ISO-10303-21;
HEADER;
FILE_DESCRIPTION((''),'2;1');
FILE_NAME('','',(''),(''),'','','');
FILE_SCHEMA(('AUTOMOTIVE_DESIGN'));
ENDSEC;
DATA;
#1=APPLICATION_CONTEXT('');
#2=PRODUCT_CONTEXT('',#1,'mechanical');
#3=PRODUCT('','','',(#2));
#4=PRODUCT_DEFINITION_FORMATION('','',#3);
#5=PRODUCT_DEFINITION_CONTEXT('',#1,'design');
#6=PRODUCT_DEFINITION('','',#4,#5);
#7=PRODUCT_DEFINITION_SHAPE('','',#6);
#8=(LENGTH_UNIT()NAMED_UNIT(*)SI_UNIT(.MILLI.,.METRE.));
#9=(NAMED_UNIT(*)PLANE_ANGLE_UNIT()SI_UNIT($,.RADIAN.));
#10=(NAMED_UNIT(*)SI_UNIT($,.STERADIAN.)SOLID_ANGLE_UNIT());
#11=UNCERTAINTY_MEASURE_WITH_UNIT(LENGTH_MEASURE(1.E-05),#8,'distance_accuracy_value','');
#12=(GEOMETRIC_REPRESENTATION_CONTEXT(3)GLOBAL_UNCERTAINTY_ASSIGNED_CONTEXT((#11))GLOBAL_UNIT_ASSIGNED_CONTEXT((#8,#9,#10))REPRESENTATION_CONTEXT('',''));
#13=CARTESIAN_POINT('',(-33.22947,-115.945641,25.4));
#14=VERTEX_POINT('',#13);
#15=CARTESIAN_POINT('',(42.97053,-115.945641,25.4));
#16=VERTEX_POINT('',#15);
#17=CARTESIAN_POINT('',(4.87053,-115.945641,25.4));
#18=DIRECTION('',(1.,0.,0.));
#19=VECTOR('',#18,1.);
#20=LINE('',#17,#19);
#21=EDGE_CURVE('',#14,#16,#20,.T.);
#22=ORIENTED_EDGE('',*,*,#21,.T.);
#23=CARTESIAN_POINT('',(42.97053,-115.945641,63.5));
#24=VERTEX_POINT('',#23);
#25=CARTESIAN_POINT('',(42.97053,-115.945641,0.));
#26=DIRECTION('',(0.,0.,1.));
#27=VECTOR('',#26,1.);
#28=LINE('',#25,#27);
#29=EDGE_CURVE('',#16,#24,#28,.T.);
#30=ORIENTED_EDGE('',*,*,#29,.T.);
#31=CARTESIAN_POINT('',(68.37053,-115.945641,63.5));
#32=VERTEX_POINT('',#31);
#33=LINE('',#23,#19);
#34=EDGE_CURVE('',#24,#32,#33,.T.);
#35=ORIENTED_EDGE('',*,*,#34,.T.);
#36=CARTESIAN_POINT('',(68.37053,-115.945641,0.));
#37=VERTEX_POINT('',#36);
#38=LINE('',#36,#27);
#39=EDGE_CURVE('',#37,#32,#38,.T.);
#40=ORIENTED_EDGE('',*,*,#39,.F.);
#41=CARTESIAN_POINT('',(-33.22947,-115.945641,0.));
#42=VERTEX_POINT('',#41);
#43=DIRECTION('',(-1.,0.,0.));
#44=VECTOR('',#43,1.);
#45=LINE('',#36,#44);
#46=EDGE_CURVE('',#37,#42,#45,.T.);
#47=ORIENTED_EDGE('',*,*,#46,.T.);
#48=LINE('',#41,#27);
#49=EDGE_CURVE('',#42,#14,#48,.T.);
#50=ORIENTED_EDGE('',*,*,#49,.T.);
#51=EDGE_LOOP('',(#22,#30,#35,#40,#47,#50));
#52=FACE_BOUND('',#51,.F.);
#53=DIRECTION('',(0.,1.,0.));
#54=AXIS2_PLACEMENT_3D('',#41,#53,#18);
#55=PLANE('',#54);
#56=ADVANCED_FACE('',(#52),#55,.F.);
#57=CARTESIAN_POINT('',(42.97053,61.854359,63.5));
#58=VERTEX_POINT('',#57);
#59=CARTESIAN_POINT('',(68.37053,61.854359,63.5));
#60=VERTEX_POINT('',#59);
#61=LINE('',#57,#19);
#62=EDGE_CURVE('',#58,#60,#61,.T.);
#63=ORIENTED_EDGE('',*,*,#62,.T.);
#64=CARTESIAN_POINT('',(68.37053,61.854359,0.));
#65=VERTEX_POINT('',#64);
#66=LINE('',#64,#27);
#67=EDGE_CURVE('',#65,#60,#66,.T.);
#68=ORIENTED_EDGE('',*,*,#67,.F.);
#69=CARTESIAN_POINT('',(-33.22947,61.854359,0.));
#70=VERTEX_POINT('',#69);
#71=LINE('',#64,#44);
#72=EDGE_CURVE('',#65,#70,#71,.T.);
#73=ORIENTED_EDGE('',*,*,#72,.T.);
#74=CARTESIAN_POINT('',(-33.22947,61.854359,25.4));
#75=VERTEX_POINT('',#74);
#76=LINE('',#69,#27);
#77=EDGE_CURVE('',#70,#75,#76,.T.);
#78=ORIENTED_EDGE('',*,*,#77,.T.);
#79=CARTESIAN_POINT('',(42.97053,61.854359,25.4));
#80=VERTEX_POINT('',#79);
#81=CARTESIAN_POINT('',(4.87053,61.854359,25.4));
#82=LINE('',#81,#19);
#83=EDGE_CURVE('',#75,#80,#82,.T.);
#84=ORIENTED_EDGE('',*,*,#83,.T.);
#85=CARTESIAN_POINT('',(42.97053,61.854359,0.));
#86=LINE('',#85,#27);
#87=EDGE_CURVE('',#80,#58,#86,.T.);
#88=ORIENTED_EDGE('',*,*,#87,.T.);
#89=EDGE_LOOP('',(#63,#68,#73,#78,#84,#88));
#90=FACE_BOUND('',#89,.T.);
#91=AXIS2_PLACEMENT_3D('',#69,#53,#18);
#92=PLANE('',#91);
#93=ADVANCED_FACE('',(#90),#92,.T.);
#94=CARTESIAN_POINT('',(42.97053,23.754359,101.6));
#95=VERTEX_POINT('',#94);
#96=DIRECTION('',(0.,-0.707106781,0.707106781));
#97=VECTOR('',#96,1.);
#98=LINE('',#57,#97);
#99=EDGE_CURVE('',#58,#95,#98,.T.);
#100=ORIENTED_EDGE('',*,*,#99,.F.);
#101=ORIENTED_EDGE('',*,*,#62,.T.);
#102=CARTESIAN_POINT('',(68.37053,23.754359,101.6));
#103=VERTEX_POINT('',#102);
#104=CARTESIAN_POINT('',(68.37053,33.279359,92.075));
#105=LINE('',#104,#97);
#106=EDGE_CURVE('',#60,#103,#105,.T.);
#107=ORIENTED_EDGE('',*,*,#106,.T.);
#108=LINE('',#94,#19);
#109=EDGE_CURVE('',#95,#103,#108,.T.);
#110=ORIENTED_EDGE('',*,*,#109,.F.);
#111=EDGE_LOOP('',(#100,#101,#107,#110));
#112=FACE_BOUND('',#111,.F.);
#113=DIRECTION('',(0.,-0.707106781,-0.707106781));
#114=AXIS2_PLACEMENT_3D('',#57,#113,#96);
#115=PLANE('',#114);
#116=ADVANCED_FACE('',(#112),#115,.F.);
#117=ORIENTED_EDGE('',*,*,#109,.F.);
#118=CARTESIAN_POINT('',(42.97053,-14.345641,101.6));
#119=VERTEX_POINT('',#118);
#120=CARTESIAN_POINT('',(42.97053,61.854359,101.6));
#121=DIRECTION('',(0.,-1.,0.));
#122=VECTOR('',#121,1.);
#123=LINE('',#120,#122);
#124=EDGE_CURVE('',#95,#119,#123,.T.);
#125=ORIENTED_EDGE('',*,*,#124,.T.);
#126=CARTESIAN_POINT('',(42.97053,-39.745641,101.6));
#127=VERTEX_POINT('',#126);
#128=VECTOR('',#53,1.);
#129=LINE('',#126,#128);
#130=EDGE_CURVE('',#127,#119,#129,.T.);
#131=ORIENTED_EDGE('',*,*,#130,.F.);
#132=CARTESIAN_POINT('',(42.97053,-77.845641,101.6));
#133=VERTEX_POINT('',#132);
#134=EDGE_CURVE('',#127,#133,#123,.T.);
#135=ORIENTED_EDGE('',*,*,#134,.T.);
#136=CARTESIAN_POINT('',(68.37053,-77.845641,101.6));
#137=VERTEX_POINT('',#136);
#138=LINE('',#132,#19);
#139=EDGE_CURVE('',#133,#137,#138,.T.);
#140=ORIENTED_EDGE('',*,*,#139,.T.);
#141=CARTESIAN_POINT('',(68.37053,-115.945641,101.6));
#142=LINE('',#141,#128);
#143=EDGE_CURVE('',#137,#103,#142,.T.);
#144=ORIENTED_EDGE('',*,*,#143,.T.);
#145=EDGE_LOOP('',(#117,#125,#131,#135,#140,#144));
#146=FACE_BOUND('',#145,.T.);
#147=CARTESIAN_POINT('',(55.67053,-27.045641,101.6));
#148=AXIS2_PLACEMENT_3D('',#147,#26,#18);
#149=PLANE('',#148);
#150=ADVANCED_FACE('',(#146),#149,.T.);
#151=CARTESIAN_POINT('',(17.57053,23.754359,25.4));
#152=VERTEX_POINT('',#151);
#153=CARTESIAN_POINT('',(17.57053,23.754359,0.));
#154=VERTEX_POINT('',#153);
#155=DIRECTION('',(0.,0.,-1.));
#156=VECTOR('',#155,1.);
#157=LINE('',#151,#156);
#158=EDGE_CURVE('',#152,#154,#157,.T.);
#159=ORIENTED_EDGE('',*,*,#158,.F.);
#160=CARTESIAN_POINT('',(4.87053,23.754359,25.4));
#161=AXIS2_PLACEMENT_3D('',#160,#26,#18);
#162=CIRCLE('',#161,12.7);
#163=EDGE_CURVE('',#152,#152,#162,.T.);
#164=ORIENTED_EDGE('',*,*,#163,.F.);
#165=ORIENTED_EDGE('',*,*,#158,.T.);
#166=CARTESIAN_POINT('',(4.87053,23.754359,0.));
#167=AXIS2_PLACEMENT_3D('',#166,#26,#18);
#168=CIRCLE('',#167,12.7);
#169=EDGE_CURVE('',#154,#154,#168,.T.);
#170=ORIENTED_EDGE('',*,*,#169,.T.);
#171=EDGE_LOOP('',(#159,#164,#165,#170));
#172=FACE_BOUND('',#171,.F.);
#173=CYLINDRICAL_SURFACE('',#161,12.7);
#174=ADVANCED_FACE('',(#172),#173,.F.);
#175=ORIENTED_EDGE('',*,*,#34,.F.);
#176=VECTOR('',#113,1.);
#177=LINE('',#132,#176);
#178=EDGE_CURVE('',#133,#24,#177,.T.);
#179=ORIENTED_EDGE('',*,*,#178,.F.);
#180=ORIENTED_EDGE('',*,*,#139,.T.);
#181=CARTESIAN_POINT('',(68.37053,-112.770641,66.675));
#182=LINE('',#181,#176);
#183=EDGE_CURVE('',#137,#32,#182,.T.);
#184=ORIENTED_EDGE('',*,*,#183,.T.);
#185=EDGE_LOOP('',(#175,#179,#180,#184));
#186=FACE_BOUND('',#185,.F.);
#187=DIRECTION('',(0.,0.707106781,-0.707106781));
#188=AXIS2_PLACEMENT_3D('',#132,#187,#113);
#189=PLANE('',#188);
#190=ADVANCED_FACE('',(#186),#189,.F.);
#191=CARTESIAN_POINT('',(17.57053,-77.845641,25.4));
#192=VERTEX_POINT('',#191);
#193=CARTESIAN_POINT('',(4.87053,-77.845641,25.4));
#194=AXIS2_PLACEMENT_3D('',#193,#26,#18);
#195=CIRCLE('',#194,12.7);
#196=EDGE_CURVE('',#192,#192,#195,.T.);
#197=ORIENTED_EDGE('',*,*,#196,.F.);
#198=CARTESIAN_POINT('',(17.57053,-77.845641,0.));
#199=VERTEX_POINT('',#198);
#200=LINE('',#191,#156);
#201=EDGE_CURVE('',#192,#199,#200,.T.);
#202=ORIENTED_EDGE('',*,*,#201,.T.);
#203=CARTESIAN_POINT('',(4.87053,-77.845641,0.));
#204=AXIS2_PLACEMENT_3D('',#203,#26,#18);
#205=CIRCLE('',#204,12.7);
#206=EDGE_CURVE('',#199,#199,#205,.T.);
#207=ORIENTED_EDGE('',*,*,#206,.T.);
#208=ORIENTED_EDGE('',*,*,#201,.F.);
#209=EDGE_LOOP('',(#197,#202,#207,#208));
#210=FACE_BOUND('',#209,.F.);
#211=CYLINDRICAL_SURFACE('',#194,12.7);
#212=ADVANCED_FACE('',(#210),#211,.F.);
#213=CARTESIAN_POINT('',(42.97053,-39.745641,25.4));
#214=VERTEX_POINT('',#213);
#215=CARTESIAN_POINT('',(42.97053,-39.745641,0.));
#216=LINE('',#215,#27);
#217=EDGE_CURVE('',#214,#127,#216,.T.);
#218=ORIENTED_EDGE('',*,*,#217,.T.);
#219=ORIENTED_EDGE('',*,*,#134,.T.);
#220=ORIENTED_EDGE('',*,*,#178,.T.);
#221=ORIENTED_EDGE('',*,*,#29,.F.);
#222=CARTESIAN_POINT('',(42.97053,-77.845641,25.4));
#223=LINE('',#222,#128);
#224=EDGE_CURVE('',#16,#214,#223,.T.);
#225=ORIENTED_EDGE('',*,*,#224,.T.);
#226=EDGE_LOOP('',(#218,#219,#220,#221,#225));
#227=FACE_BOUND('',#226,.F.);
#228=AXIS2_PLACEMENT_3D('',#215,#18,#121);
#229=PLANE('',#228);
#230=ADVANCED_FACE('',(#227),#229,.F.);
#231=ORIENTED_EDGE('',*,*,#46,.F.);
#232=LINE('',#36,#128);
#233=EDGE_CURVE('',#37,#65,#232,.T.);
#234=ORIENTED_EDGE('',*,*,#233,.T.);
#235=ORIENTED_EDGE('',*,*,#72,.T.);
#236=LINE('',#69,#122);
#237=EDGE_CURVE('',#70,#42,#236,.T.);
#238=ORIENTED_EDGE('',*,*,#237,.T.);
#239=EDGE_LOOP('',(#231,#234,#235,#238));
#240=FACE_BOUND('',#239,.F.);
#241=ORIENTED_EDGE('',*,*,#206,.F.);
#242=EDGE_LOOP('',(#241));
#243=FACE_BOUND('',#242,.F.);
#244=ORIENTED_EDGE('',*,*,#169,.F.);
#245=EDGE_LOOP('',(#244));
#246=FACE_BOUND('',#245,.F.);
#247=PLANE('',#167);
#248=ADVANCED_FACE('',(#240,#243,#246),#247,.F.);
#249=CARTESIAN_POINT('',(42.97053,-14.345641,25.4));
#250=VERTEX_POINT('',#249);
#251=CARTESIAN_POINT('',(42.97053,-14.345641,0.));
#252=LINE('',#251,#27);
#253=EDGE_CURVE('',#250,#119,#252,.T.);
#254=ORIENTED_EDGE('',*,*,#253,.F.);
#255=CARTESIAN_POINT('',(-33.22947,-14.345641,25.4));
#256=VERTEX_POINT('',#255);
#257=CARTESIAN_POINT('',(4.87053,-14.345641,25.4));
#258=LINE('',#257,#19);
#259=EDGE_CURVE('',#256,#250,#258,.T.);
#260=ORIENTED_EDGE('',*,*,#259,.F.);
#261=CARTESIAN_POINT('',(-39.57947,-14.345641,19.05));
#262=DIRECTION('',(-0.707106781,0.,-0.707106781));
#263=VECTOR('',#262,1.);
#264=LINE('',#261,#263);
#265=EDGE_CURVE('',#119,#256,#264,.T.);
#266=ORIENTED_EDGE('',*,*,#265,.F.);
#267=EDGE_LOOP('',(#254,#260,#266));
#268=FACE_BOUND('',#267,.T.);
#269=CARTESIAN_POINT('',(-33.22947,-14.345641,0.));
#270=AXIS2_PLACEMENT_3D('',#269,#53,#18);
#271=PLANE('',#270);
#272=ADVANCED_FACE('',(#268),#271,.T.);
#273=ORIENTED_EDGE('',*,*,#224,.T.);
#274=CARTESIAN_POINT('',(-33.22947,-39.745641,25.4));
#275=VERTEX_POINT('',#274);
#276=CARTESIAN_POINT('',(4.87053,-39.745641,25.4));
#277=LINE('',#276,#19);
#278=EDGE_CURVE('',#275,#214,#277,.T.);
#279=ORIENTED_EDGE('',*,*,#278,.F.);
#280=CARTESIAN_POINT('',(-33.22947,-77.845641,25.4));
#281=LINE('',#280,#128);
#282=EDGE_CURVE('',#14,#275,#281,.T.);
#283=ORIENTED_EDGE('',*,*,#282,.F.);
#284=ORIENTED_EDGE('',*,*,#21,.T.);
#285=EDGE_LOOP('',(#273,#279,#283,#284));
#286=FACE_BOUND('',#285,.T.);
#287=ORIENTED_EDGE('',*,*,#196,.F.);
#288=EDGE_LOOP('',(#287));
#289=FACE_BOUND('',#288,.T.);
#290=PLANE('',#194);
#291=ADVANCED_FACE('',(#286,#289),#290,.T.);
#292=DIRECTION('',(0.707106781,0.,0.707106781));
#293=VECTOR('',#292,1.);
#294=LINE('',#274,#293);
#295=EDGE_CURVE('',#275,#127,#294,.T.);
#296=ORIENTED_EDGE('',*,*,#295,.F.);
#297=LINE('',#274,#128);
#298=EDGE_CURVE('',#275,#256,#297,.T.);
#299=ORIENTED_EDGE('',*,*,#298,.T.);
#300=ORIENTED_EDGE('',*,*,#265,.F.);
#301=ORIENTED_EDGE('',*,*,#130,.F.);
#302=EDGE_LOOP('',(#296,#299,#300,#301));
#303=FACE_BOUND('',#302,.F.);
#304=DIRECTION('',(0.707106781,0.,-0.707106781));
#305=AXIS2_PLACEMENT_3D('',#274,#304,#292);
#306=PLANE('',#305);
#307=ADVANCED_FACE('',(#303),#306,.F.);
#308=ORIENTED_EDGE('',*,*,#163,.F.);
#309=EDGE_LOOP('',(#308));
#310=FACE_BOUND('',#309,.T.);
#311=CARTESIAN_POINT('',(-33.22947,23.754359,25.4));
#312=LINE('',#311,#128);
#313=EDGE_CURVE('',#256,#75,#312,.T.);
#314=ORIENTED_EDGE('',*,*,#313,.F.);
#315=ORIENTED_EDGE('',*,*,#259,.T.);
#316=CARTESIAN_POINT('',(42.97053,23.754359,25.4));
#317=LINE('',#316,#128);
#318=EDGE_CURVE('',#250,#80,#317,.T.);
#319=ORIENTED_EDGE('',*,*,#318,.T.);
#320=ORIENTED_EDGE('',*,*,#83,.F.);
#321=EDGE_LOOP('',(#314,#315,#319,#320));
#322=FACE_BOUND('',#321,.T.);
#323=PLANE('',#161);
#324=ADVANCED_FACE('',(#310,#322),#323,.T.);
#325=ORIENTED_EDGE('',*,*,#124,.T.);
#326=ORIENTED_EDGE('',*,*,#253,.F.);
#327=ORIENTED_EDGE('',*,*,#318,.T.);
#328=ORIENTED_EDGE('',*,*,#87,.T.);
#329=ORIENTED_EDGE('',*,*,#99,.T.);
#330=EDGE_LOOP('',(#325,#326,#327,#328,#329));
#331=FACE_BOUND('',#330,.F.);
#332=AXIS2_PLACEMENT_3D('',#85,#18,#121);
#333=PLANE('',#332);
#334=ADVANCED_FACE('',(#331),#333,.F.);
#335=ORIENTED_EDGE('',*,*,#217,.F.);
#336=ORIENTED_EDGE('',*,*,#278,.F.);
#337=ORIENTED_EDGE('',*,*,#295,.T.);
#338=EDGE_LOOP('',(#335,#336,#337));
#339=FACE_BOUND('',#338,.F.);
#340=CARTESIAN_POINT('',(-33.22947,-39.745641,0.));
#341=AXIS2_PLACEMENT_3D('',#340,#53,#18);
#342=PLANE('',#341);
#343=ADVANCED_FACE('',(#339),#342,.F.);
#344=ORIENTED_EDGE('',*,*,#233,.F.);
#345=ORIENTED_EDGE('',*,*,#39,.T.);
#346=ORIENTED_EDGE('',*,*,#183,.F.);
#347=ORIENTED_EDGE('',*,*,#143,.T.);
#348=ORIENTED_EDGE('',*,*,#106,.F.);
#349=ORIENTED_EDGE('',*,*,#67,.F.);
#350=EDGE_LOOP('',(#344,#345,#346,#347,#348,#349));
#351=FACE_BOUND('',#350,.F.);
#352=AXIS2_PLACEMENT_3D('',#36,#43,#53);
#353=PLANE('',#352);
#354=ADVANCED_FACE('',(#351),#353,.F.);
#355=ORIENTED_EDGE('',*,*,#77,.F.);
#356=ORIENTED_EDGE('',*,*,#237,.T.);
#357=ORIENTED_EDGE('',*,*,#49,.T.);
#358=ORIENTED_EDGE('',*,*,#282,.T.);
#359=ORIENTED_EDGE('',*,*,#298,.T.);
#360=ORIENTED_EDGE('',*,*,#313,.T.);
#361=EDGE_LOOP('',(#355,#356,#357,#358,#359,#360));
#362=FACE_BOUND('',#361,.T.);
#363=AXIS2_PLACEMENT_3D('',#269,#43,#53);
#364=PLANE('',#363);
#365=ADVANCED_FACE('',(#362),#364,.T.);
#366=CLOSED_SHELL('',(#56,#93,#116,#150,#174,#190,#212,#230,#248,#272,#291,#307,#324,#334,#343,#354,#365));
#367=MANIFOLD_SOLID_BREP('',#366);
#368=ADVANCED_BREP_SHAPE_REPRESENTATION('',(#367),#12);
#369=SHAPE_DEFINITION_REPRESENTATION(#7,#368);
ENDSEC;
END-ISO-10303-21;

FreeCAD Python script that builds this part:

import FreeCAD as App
import Part
import Sketcher

V = App.Vector
Q = App.Units.Quantity


def add_polygon(sketch, points):
    """Adds a closed chain of lines whose ends are joined by coincident constraints."""
    first, n = sketch.GeometryCount, len(points)
    for a, b in zip(points, points[1:] + points[:1]):
        sketch.addGeometry(Part.LineSegment(App.Vector(*a, 0), App.Vector(*b, 0)), False)
    for i in range(n):
        sketch.addConstraint(Sketcher.Constraint("Coincident", first + i, 2, first + (i + 1) % n, 1))

doc = App.newDocument("Part")
params = doc.addObject("Spreadsheet::Sheet", "Params")
for row, (alias, value) in enumerate([
    ("sketch1_width", "1 in"),
    ("sketch1_width2", "3 in"),
    ("pad1_length", "4 in"),
    ("sketch2_width", "3 in"),
    ("pad2_length", "1 in"),
    ("sketch3_width", "3 in"),
    ("sketch4_width", "1.5 in"),
    ("sketch5_diameter", "1 in"),
], start=1):
    params.set(f"A{row}", alias)
    params.set(f"B{row}", "=" + value)
    params.setAlias(f"B{row}", alias)

body = doc.addObject("PartDesign::Body", "Body")

# Sketch on XY plane
sketch1 = body.newObject("Sketcher::SketchObject", "Sketch")
sketch1.AttachmentSupport = (doc.getObject("XY_Plane"), [""])
sketch1.MapMode = "FlatFace"
add_polygon(sketch1, [(68, 62), (43, 62), (43, -14), (-33, -14), (-33, -40), (43, -40), (43, -116), (68, -116)])  # lines 0-7
sketch1.addConstraint(Sketcher.Constraint("Horizontal", 0))
sketch1.addConstraint(Sketcher.Constraint("Vertical", 1))
sketch1.addConstraint(Sketcher.Constraint("Horizontal", 2))
sketch1.addConstraint(Sketcher.Constraint("Vertical", 3))
sketch1.addConstraint(Sketcher.Constraint("Horizontal", 4))
sketch1.addConstraint(Sketcher.Constraint("Vertical", 5))
sketch1.addConstraint(Sketcher.Constraint("Horizontal", 6))
sketch1.addConstraint(Sketcher.Constraint("Vertical", 7))
sketch1.addConstraint(Sketcher.Constraint("Vertical", 1, 2, 4, 2))
sketch1.addConstraint(Sketcher.Constraint("Equal", 4, 1))
sketch1.addConstraint(Sketcher.Constraint("Equal", 6, 3))
sketch1.addConstraint(Sketcher.Constraint("Equal", 1, 5))
sketch1.addConstraint(Sketcher.Constraint("DistanceX", 0, 2, 0, 1, Q("1 in")))
sketch1.addConstraint(Sketcher.Constraint("DistanceX", 2, 2, 2, 1, Q("3 in")))
sketch1.addConstraint(Sketcher.Constraint("DistanceX", -1, 1, 0, 2, Q("42.97053 mm")))
sketch1.addConstraint(Sketcher.Constraint("DistanceY", -1, 1, 0, 2, Q("61.854359 mm")))
sketch1.setExpression("Constraints[20]", "Params.sketch1_width")
sketch1.setExpression("Constraints[21]", "Params.sketch1_width2")
pad1 = body.newObject("PartDesign::Pad", "Pad")
pad1.Profile = sketch1
pad1.setExpression("Length", "Params.pad1_length")

# Sketch on XY plane
sketch2 = body.newObject("Sketcher::SketchObject", "Sketch001")
sketch2.AttachmentSupport = (doc.getObject("XY_Plane"), [""])
sketch2.MapMode = "FlatFace"
add_polygon(sketch2, [(-33, 62), (-33, -14), (43, -14), (43, 62)])  # lines 0-3
add_polygon(sketch2, [(-33, -40), (-33, -116), (43, -116), (43, -40)])  # lines 4-7
sketch2.addConstraint(Sketcher.Constraint("Vertical", 0))
sketch2.addConstraint(Sketcher.Constraint("Horizontal", 1))
sketch2.addConstraint(Sketcher.Constraint("Vertical", 2))
sketch2.addConstraint(Sketcher.Constraint("Horizontal", 3))
sketch2.addConstraint(Sketcher.Constraint("Vertical", 4))
sketch2.addConstraint(Sketcher.Constraint("Horizontal", 5))
sketch2.addConstraint(Sketcher.Constraint("Vertical", 6))
sketch2.addConstraint(Sketcher.Constraint("Horizontal", 7))
sketch2.addConstraint(Sketcher.Constraint("Vertical", 3, 2, 4, 2))
sketch2.addConstraint(Sketcher.Constraint("Vertical", 2, 2, 5, 2))
sketch2.addConstraint(Sketcher.Constraint("Equal", 7, 0))
sketch2.addConstraint(Sketcher.Constraint("Equal", 2, 4))
sketch2.addConstraint(Sketcher.Constraint("DistanceX", 1, 1, 1, 2, Q("3 in")))
sketch2.addConstraint(Sketcher.Constraint("DistanceY", 4, 2, 0, 2, Q("4 in")))
sketch2.addConstraint(Sketcher.Constraint("DistanceX", 0, 2, -1, 1, Q("33.22947 mm")))
sketch2.addConstraint(Sketcher.Constraint("DistanceY", 0, 2, -1, 1, Q("14.345641 mm")))
sketch2.setExpression("Constraints[20]", "Params.sketch2_width")
pad2 = body.newObject("PartDesign::Pad", "Pad001")
pad2.Profile = sketch2
pad2.setExpression("Length", "Params.pad2_length")

# Sketch on XZ plane
sketch3 = body.newObject("Sketcher::SketchObject", "Sketch002")
sketch3.AttachmentSupport = (doc.getObject("XZ_Plane"), [""])
sketch3.MapMode = "FlatFace"
sketch3.AttachmentOffset = App.Placement(V(0, 0, 39.745641), App.Rotation())
add_polygon(sketch3, [(-33, 102), (-33, 25), (43, 102)])  # lines 0-2
sketch3.addConstraint(Sketcher.Constraint("Vertical", 0))
sketch3.addConstraint(Sketcher.Constraint("Horizontal", 2))
sketch3.addConstraint(Sketcher.Constraint("Equal", 2, 0))
sketch3.addConstraint(Sketcher.Constraint("DistanceX", 2, 2, 2, 1, Q("3 in")))
sketch3.addConstraint(Sketcher.Constraint("DistanceY", -1, 1, 0, 2, Q("1 in")))
sketch3.addConstraint(Sketcher.Constraint("DistanceX", 0, 2, -1, 1, Q("33.22947 mm")))
sketch3.setExpression("Constraints[6]", "Params.sketch3_width")
pocket1 = body.newObject("PartDesign::Pocket", "Pocket")
pocket1.Profile = sketch3
pocket1.Type = "ThroughAll"

# Sketch on YZ plane
sketch4 = body.newObject("Sketcher::SketchObject", "Sketch003")
sketch4.AttachmentSupport = (doc.getObject("YZ_Plane"), [""])
sketch4.MapMode = "FlatFace"
sketch4.AttachmentOffset = App.Placement(V(0, 0, 42.97053), App.Rotation())
add_polygon(sketch4, [(62, 64), (24, 102), (62, 102)])  # lines 0-2
add_polygon(sketch4, [(-116, 102), (-78, 102), (-116, 64)])  # lines 3-5
sketch4.addConstraint(Sketcher.Constraint("Horizontal", 1))
sketch4.addConstraint(Sketcher.Constraint("Vertical", 2))
sketch4.addConstraint(Sketcher.Constraint("Horizontal", 3))
sketch4.addConstraint(Sketcher.Constraint("Vertical", 5))
sketch4.addConstraint(Sketcher.Constraint("Perpendicular", 0, 4))
sketch4.addConstraint(Sketcher.Constraint("Horizontal", 1, 2, 3, 2))
sketch4.addConstraint(Sketcher.Constraint("Horizontal", 2, 2, 4, 2))
sketch4.addConstraint(Sketcher.Constraint("Equal", 1, 3))
sketch4.addConstraint(Sketcher.Constraint("DistanceX", 1, 1, 1, 2, Q("1.5 in")))
sketch4.addConstraint(Sketcher.Constraint("DistanceY", -1, 1, 0, 2, Q("4 in")))
sketch4.addConstraint(Sketcher.Constraint("DistanceX", 3, 2, 0, 2, Q("4 in")))
sketch4.addConstraint(Sketcher.Constraint("DistanceX", -1, 1, 0, 2, Q("23.754359 mm")))
sketch4.setExpression("Constraints[14]", "Params.sketch4_width")
pocket2 = body.newObject("PartDesign::Pocket", "Pocket001")
pocket2.Profile = sketch4
pocket2.Type = "ThroughAll"
pocket2.Reversed = True

# Sketch on XY plane
sketch5 = body.newObject("Sketcher::SketchObject", "Sketch004")
sketch5.AttachmentSupport = (doc.getObject("XY_Plane"), [""])
sketch5.MapMode = "FlatFace"
sketch5.AttachmentOffset = App.Placement(V(0, 0, 1 * 25.4), App.Rotation())
sketch5.addGeometry(Part.Circle(V(5, 24, 0), V(0, 0, 1), 13), False)
sketch5.addGeometry(Part.Circle(V(5, -78, 0), V(0, 0, 1), 13), False)
sketch5.addConstraint(Sketcher.Constraint("Equal", 0, 1))
sketch5.addConstraint(Sketcher.Constraint("Vertical", 0, 3, 1, 3))
sketch5.addConstraint(Sketcher.Constraint("Diameter", 0, Q("1 in")))
sketch5.addConstraint(Sketcher.Constraint("DistanceY", 1, 3, 0, 3, Q("4 in")))
sketch5.addConstraint(Sketcher.Constraint("DistanceX", -1, 1, 0, 3, Q("4.87053 mm")))
sketch5.addConstraint(Sketcher.Constraint("DistanceY", -1, 1, 0, 3, Q("23.754359 mm")))
sketch5.setExpression("Constraints[2]", "Params.sketch5_diameter")
pocket3 = body.newObject("PartDesign::Pocket", "Pocket002")
pocket3.Profile = sketch5
pocket3.Type = "ThroughAll"

doc.recompute()
